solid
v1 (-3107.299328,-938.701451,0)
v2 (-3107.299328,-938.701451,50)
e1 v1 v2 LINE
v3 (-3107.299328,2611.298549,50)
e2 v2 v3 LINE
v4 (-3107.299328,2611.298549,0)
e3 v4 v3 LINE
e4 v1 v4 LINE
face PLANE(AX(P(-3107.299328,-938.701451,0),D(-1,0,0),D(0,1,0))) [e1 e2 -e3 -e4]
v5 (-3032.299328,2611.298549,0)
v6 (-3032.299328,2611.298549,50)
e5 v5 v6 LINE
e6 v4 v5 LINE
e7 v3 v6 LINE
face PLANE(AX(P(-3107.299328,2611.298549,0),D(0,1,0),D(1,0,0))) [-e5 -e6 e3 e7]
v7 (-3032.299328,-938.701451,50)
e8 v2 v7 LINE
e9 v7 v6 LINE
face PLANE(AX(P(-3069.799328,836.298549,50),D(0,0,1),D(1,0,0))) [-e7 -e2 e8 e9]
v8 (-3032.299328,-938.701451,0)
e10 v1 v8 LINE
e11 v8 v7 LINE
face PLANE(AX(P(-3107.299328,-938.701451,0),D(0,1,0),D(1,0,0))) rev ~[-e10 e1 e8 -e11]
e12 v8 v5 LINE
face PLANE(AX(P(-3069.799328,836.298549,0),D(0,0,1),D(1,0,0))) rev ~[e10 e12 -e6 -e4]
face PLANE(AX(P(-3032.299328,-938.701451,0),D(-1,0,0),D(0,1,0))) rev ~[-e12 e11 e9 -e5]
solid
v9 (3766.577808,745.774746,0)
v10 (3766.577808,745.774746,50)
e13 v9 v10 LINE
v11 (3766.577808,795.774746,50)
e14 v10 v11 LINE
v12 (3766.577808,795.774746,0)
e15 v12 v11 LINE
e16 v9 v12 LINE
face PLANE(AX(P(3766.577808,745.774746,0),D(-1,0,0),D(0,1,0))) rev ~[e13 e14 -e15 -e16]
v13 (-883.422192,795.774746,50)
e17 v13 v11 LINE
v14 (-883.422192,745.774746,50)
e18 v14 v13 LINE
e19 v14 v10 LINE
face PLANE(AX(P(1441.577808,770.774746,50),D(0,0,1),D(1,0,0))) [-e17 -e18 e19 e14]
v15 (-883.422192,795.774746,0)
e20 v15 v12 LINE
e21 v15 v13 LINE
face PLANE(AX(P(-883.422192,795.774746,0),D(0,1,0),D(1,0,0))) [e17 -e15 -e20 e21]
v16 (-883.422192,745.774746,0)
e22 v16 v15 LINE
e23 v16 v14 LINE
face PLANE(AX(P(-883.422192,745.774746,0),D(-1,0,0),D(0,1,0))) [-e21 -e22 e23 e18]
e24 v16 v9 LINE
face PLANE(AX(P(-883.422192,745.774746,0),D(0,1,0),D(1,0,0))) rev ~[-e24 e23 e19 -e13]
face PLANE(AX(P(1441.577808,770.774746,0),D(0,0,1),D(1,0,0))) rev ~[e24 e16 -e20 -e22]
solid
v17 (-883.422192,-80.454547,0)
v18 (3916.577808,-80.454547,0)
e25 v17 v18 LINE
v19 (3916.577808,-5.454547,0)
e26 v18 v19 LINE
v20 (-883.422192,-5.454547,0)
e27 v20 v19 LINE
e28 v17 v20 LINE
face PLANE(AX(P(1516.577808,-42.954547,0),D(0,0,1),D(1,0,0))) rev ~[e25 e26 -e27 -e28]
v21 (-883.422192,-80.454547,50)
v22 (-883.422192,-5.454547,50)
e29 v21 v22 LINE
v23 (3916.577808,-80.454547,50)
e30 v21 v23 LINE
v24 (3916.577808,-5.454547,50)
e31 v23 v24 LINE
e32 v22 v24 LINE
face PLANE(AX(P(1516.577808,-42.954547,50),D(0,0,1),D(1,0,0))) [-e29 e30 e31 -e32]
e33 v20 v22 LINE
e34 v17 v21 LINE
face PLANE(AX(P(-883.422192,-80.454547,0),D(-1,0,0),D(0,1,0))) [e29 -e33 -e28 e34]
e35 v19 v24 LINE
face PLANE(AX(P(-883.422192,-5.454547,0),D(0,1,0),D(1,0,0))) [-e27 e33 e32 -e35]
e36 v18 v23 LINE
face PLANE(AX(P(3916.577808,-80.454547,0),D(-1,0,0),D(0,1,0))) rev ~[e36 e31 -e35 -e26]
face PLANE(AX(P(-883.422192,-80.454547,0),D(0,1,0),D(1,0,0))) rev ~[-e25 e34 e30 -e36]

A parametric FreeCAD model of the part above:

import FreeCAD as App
import Part
import Sketcher

V = App.Vector

doc = App.newDocument("Part")
body = doc.addObject("PartDesign::Body", "Body")
body.AllowCompound = True

# Sketch on XY plane
sketch1 = body.newObject("Sketcher::SketchObject", "Sketch")
sketch1.AttachmentSupport = (doc.getObject("XY_Plane"), [""])
sketch1.MapMode = "FlatFace"
sketch1.addGeometry(Part.LineSegment(V(-883, -5, 0), V(-883, -80, 0)), False)
sketch1.addGeometry(Part.LineSegment(V(-883, -80, 0), V(3917, -80, 0)), False)
sketch1.addGeometry(Part.LineSegment(V(3917, -80, 0), V(3917, -5, 0)), False)
sketch1.addGeometry(Part.LineSegment(V(3917, -5, 0), V(-883, -5, 0)), False)
sketch1.addGeometry(Part.LineSegment(V(-883, 796, 0), V(-883, 746, 0)), False)
sketch1.addGeometry(Part.LineSegment(V(-883, 746, 0), V(3767, 746, 0)), False)
sketch1.addGeometry(Part.LineSegment(V(3767, 746, 0), V(3767, 796, 0)), False)
sketch1.addGeometry(Part.LineSegment(V(3767, 796, 0), V(-883, 796, 0)), False)
sketch1.addGeometry(Part.LineSegment(V(-3107, 2611, 0), V(-3107, -939, 0)), False)
sketch1.addGeometry(Part.LineSegment(V(-3107, -939, 0), V(-3032, -939, 0)), False)
sketch1.addGeometry(Part.LineSegment(V(-3032, -939, 0), V(-3032, 2611, 0)), False)
sketch1.addGeometry(Part.LineSegment(V(-3032, 2611, 0), V(-3107, 2611, 0)), False)
sketch1.addConstraint(Sketcher.Constraint("Coincident", 0, 2, 1, 1))
sketch1.addConstraint(Sketcher.Constraint("Coincident", 1, 2, 2, 1))
sketch1.addConstraint(Sketcher.Constraint("Coincident", 2, 2, 3, 1))
sketch1.addConstraint(Sketcher.Constraint("Coincident", 3, 2, 0, 1))
sketch1.addConstraint(Sketcher.Constraint("Coincident", 4, 2, 5, 1))
sketch1.addConstraint(Sketcher.Constraint("Coincident", 5, 2, 6, 1))
sketch1.addConstraint(Sketcher.Constraint("Coincident", 6, 2, 7, 1))
sketch1.addConstraint(Sketcher.Constraint("Coincident", 7, 2, 4, 1))
sketch1.addConstraint(Sketcher.Constraint("Coincident", 8, 2, 9, 1))
sketch1.addConstraint(Sketcher.Constraint("Coincident", 9, 2, 10, 1))
sketch1.addConstraint(Sketcher.Constraint("Coincident", 10, 2, 11, 1))
sketch1.addConstraint(Sketcher.Constraint("Coincident", 11, 2, 8, 1))
sketch1.addConstraint(Sketcher.Constraint("Vertical", 0))
sketch1.addConstraint(Sketcher.Constraint("Horizontal", 1))
sketch1.addConstraint(Sketcher.Constraint("Vertical", 2))
sketch1.addConstraint(Sketcher.Constraint("Horizontal", 3))
sketch1.addConstraint(Sketcher.Constraint("Vertical", 4))
sketch1.addConstraint(Sketcher.Constraint("Horizontal", 5))
sketch1.addConstraint(Sketcher.Constraint("Vertical", 6))
sketch1.addConstraint(Sketcher.Constraint("Horizontal", 7))
sketch1.addConstraint(Sketcher.Constraint("Vertical", 8))
sketch1.addConstraint(Sketcher.Constraint("Horizontal", 9))
sketch1.addConstraint(Sketcher.Constraint("Vertical", 10))
sketch1.addConstraint(Sketcher.Constraint("Horizontal", 11))
sketch1.addConstraint(Sketcher.Constraint("Vertical", 3, 2, 4, 2))
sketch1.addConstraint(Sketcher.Constraint("Equal", 11, 0))
sketch1.addConstraint(Sketcher.Constraint("DistanceX", 1, 1, 1, 2, 4800.0))
sketch1.addConstraint(Sketcher.Constraint("DistanceX", 5, 1, 5, 2, 4650.0))
sketch1.addConstraint(Sketcher.Constraint("DistanceX", 9, 1, 9, 2, 75.0))
sketch1.addConstraint(Sketcher.Constraint("DistanceY", 4, 2, 4, 1, 50.0))
sketch1.addConstraint(Sketcher.Constraint("DistanceY", 8, 2, 8, 1, 3550.0))
sketch1.addConstraint(Sketcher.Constraint("DistanceX", 0, 2, -1, 1, 883.422192))
sketch1.addConstraint(Sketcher.Constraint("DistanceX", 8, 2, -1, 1, 3107.299328))
sketch1.addConstraint(Sketcher.Constraint("DistanceY", 8, 2, -1, 1, 938.701451))
sketch1.addConstraint(Sketcher.Constraint("DistanceY", 0, 2, -1, 1, 80.454547))
sketch1.addConstraint(Sketcher.Constraint("DistanceY", -1, 1, 4, 2, 745.774746))
pad1 = body.newObject("PartDesign::Pad", "Pad")
pad1.Profile = sketch1
pad1.Length = 50

doc.recompute()
